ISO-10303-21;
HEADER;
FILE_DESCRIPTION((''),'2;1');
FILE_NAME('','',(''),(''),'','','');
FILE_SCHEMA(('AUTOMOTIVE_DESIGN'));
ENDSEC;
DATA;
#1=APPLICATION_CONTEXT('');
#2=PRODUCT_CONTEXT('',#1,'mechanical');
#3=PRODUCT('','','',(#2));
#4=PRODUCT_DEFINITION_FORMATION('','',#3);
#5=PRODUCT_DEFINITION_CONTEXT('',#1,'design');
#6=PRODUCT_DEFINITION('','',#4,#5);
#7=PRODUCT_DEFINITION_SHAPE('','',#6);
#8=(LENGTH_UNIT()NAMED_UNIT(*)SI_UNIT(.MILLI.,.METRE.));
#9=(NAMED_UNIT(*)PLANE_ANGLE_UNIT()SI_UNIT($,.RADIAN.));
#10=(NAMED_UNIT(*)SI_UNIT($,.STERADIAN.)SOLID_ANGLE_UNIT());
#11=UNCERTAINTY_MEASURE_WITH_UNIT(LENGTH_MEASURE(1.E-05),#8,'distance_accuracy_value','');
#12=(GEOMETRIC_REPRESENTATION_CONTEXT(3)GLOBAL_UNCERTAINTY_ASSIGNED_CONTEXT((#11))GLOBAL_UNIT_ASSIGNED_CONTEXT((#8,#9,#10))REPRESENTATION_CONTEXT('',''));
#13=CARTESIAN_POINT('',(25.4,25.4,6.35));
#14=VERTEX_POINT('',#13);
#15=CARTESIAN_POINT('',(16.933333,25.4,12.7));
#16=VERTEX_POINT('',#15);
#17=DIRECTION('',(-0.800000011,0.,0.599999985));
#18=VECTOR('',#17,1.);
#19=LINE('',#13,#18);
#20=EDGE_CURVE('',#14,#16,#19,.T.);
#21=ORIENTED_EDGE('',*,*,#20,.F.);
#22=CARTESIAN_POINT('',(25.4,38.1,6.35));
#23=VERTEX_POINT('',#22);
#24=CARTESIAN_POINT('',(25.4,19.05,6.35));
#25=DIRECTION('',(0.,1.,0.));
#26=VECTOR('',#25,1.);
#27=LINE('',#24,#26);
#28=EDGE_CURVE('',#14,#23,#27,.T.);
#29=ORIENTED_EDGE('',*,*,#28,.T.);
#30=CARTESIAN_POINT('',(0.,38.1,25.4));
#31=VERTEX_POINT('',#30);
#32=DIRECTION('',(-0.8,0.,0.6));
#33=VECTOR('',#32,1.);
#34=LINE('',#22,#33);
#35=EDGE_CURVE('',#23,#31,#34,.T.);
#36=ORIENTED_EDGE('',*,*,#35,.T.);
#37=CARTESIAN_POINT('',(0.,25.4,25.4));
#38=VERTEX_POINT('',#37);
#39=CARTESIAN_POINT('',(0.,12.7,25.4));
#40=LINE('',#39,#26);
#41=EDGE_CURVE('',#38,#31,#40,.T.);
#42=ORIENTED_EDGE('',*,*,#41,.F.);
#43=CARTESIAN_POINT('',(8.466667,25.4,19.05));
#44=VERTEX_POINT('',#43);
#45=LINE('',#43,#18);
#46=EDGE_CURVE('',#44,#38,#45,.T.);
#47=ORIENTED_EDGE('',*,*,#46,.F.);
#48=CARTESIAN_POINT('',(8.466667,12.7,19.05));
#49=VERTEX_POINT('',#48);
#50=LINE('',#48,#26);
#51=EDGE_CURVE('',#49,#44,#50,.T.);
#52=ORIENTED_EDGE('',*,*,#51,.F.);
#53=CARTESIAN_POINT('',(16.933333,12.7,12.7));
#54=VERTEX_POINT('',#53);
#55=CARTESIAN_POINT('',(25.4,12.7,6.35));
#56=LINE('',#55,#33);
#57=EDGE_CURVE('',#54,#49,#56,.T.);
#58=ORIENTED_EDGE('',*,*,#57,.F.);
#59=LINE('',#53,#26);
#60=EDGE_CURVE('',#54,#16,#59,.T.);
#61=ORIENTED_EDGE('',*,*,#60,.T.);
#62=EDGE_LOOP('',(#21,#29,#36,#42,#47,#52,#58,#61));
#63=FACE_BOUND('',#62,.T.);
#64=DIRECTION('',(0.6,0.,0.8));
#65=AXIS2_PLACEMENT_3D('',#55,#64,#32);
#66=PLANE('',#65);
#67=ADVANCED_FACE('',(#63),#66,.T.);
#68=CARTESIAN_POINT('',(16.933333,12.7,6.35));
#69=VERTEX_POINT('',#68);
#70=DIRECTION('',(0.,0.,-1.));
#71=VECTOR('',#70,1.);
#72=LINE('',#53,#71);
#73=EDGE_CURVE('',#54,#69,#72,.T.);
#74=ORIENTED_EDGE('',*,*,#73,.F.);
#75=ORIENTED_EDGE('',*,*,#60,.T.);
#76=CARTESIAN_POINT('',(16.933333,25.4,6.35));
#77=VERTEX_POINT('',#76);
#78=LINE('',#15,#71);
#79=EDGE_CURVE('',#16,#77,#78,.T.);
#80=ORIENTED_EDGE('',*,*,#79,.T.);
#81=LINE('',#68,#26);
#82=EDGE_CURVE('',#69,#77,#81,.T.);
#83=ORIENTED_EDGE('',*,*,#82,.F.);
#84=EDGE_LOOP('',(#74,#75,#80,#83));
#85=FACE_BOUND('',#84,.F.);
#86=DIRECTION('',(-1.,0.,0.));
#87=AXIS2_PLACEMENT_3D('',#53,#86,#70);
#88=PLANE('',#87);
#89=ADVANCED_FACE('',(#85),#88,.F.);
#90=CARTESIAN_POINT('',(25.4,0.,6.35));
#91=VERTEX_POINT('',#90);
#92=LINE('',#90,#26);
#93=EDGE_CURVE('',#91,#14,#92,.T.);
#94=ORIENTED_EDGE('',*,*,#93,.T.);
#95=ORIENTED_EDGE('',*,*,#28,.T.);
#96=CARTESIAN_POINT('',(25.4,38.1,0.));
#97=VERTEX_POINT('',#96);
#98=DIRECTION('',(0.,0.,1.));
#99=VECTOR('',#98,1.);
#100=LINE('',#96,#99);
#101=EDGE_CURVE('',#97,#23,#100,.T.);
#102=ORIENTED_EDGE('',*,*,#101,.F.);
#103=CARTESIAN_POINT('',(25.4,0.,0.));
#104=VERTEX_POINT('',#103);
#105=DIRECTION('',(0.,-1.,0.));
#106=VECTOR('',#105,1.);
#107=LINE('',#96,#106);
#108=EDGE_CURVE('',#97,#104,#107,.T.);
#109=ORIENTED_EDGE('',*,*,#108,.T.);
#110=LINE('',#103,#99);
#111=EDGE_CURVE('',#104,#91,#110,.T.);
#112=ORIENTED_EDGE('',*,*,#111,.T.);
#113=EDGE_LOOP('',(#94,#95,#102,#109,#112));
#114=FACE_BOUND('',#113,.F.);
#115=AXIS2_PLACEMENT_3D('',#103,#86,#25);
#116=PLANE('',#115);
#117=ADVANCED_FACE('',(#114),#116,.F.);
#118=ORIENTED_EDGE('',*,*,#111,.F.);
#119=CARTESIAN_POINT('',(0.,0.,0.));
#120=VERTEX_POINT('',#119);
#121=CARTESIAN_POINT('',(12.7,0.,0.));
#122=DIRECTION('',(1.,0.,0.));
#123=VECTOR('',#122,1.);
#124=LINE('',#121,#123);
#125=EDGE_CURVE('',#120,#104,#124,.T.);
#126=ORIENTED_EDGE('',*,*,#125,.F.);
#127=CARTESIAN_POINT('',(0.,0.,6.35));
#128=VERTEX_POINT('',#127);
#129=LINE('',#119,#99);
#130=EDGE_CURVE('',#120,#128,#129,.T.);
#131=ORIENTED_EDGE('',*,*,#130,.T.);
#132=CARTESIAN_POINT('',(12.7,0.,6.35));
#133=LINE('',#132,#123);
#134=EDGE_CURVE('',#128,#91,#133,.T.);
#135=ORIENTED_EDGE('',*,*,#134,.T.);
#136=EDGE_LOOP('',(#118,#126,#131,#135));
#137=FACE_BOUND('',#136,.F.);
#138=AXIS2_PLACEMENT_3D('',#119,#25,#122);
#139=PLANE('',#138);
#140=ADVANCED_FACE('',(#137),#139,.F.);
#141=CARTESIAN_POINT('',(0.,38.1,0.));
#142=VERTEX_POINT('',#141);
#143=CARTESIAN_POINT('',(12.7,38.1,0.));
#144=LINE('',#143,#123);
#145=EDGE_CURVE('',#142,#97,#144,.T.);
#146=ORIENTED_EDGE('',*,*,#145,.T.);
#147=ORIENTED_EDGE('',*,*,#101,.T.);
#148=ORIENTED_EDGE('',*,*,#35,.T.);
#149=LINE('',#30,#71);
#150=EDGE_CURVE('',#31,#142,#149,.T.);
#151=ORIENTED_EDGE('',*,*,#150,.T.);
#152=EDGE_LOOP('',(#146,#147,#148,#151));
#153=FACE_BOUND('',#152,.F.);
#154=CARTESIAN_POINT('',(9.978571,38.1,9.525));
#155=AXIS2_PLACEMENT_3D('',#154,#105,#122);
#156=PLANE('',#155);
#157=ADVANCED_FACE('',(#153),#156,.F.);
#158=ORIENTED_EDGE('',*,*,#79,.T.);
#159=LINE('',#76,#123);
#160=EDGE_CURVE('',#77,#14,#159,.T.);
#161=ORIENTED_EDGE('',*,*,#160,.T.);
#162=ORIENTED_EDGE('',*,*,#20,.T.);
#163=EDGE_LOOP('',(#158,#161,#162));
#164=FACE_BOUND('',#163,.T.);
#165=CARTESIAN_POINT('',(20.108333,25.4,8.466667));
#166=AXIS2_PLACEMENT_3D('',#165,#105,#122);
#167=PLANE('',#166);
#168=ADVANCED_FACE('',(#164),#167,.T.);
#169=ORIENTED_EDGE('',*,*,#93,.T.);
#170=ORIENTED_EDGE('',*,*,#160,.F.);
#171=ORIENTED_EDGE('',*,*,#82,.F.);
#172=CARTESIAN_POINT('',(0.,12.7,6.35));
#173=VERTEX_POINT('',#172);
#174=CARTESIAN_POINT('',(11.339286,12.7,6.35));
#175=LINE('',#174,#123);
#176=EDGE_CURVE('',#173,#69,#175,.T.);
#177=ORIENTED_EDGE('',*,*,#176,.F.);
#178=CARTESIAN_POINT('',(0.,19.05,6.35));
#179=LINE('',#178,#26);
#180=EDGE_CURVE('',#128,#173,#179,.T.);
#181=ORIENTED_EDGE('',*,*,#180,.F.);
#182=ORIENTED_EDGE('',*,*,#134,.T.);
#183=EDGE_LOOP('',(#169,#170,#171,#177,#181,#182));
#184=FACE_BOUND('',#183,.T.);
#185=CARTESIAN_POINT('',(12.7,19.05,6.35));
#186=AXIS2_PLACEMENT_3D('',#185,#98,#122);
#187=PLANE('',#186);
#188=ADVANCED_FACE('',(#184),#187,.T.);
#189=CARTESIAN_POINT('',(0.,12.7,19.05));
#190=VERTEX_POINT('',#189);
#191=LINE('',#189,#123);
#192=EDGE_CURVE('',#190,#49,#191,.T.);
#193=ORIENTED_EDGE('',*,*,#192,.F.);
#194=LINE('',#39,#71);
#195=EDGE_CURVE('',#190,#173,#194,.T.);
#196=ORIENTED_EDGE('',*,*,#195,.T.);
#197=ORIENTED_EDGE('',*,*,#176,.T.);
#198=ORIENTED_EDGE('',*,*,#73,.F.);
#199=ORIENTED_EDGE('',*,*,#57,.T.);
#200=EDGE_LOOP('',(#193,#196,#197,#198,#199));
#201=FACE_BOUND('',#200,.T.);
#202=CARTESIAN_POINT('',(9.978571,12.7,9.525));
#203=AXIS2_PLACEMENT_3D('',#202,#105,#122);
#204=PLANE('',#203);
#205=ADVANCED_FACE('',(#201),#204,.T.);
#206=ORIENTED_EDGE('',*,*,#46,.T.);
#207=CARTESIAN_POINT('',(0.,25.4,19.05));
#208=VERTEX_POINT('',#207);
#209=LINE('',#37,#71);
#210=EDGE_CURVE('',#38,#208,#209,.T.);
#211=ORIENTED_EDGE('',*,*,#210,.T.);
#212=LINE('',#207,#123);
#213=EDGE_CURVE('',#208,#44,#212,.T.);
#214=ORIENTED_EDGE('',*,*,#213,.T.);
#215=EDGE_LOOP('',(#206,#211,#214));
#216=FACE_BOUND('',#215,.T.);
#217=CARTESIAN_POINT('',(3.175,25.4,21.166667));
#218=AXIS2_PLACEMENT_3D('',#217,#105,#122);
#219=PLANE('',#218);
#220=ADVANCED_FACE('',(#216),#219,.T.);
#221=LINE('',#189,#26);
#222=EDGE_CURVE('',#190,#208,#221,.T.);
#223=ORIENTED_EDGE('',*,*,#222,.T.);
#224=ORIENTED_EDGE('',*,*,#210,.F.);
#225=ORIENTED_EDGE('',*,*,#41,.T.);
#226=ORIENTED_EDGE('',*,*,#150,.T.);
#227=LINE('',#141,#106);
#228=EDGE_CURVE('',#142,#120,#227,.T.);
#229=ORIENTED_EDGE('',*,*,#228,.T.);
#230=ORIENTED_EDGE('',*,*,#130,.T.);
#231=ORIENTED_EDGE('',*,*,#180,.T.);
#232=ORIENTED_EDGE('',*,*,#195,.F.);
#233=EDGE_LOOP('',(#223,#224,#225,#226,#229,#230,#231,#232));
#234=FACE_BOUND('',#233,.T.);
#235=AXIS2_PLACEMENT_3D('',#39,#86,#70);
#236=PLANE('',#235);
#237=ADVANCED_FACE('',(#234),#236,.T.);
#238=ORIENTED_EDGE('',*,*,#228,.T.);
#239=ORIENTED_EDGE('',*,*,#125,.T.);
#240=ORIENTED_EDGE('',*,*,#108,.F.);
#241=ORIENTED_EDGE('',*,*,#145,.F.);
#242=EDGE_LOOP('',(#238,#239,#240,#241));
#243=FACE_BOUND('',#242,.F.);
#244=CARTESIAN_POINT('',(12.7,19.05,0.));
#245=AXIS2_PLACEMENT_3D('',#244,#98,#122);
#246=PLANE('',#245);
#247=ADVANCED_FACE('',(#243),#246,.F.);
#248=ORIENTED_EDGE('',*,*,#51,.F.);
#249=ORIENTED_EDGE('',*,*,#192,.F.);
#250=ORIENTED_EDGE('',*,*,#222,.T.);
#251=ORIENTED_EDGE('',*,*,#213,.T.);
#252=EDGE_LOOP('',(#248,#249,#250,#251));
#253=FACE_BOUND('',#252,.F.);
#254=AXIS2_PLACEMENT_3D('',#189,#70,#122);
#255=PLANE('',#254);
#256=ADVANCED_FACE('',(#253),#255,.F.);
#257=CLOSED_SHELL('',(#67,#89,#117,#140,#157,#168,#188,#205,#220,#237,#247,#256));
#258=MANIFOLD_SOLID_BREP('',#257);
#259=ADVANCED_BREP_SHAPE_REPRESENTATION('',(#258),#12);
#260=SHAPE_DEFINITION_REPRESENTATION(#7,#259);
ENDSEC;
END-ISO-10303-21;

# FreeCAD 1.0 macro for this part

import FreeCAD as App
import Part
import Sketcher

V = App.Vector
Q = App.Units.Quantity


def add_polygon(sketch, points):
    """Adds a closed chain of lines whose ends are joined by coincident constraints."""
    first, n = sketch.GeometryCount, len(points)
    for a, b in zip(points, points[1:] + points[:1]):
        sketch.addGeometry(Part.LineSegment(App.Vector(*a, 0), App.Vector(*b, 0)), False)
    for i in range(n):
        sketch.addConstraint(Sketcher.Constraint("Coincident", first + i, 2, first + (i + 1) % n, 1))

doc = App.newDocument("Part")
body = doc.addObject("PartDesign::Body", "Body")

# Sketch on XY plane
sketch1 = doc.addObject("Sketcher::SketchObject", "Sketch")
body.addObject(sketch1)
sketch1.AttachmentSupport = (doc.XY_Plane, [""])
sketch1.MapMode = "FlatFace"
add_polygon(sketch1, [(0, 38), (0, 0), (25, 0), (25, 38)])  # lines 0-3
sketch1.addConstraint(Sketcher.Constraint("Vertical", 0))
sketch1.addConstraint(Sketcher.Constraint("Horizontal", 1))
sketch1.addConstraint(Sketcher.Constraint("Vertical", 2))
sketch1.addConstraint(Sketcher.Constraint("Horizontal", 3))
sketch1.addConstraint(Sketcher.Constraint("Coincident", 0, 2, -1, 1))
sketch1.addConstraint(Sketcher.Constraint("DistanceX", 1, 1, 1, 2, Q("1 in")))
sketch1.addConstraint(Sketcher.Constraint("DistanceY", 0, 2, 0, 1, Q("1.5 in")))
pad1 = doc.addObject("PartDesign::Pad", "Pad")
body.addObject(pad1)
pad1.Profile = sketch1
pad1.Length = Q("0.25 in")

# Sketch on XZ plane
sketch2 = doc.addObject("Sketcher::SketchObject", "Sketch001")
body.addObject(sketch2)
sketch2.AttachmentSupport = (doc.XZ_Plane, [""])
sketch2.MapMode = "FlatFace"
sketch2.AttachmentOffset = App.Placement(V(0, 0, -0.5 * 25.4), App.Rotation())
add_polygon(sketch2, [(0, 25), (0, 0), (25, 0), (25, 6)])  # lines 0-3
sketch2.addConstraint(Sketcher.Constraint("Vertical", 0))
sketch2.addConstraint(Sketcher.Constraint("Horizontal", 1))
sketch2.addConstraint(Sketcher.Constraint("Vertical", 2))
sketch2.addConstraint(Sketcher.Constraint("Coincident", 0, 2, -1, 1))
sketch2.addConstraint(Sketcher.Constraint("Equal", 1, 0))
sketch2.addConstraint(Sketcher.Constraint("DistanceX", 1, 1, 1, 2, Q("1 in")))
sketch2.addConstraint(Sketcher.Constraint("DistanceY", 2, 1, 2, 2, Q("0.25 in")))
pad2 = doc.addObject("PartDesign::Pad", "Pad001")
body.addObject(pad2)
pad2.Profile = sketch2
pad2.Length = Q("1 in")
pad2.Reversed = True

# Sketch on XZ plane
sketch3 = doc.addObject("Sketcher::SketchObject", "Sketch002")
body.addObject(sketch3)
sketch3.AttachmentSupport = (doc.XZ_Plane, [""])
sketch3.MapMode = "FlatFace"
sketch3.AttachmentOffset = App.Placement(V(0, 0, -0.5 * 25.4), App.Rotation())
add_polygon(sketch3, [(0, 25), (0, 19), (8, 19)])  # lines 0-2
add_polygon(sketch3, [(25, 6), (17, 13), (17, 6)])  # lines 3-5
sketch3.addConstraint(Sketcher.Constraint("Vertical", 0))
sketch3.addConstraint(Sketcher.Constraint("Horizontal", 1))
sketch3.addConstraint(Sketcher.Constraint("Vertical", 4))
sketch3.addConstraint(Sketcher.Constraint("Horizontal", 5))
sketch3.addConstraint(Sketcher.Constraint("PointOnObject", 0, 2, -2))
sketch3.addConstraint(Sketcher.Constraint("Parallel", 2, 3))
sketch3.addConstraint(Sketcher.Constraint("Equal", 1, 5))
sketch3.addConstraint(Sketcher.Constraint("DistanceY", -1, 1, 2, 2, Q("1 in")))
sketch3.addConstraint(Sketcher.Constraint("DistanceX", -1, 1, 5, 2, Q("1 in")))
sketch3.addConstraint(Sketcher.Constraint("DistanceY", 0, 2, 0, 1, Q("0.25 in")))
sketch3.addConstraint(Sketcher.Constraint("DistanceY", -1, 1, 3, 2, Q("0.5 in")))
sketch3.addConstraint(Sketcher.Constraint("DistanceX", 1, 1, 1, 2, 8.466667))
pocket1 = doc.addObject("PartDesign::Pocket", "Pocket")
body.addObject(pocket1)
pocket1.Profile = sketch3
pocket1.Length = Q("0.5 in")

doc.recompute()
